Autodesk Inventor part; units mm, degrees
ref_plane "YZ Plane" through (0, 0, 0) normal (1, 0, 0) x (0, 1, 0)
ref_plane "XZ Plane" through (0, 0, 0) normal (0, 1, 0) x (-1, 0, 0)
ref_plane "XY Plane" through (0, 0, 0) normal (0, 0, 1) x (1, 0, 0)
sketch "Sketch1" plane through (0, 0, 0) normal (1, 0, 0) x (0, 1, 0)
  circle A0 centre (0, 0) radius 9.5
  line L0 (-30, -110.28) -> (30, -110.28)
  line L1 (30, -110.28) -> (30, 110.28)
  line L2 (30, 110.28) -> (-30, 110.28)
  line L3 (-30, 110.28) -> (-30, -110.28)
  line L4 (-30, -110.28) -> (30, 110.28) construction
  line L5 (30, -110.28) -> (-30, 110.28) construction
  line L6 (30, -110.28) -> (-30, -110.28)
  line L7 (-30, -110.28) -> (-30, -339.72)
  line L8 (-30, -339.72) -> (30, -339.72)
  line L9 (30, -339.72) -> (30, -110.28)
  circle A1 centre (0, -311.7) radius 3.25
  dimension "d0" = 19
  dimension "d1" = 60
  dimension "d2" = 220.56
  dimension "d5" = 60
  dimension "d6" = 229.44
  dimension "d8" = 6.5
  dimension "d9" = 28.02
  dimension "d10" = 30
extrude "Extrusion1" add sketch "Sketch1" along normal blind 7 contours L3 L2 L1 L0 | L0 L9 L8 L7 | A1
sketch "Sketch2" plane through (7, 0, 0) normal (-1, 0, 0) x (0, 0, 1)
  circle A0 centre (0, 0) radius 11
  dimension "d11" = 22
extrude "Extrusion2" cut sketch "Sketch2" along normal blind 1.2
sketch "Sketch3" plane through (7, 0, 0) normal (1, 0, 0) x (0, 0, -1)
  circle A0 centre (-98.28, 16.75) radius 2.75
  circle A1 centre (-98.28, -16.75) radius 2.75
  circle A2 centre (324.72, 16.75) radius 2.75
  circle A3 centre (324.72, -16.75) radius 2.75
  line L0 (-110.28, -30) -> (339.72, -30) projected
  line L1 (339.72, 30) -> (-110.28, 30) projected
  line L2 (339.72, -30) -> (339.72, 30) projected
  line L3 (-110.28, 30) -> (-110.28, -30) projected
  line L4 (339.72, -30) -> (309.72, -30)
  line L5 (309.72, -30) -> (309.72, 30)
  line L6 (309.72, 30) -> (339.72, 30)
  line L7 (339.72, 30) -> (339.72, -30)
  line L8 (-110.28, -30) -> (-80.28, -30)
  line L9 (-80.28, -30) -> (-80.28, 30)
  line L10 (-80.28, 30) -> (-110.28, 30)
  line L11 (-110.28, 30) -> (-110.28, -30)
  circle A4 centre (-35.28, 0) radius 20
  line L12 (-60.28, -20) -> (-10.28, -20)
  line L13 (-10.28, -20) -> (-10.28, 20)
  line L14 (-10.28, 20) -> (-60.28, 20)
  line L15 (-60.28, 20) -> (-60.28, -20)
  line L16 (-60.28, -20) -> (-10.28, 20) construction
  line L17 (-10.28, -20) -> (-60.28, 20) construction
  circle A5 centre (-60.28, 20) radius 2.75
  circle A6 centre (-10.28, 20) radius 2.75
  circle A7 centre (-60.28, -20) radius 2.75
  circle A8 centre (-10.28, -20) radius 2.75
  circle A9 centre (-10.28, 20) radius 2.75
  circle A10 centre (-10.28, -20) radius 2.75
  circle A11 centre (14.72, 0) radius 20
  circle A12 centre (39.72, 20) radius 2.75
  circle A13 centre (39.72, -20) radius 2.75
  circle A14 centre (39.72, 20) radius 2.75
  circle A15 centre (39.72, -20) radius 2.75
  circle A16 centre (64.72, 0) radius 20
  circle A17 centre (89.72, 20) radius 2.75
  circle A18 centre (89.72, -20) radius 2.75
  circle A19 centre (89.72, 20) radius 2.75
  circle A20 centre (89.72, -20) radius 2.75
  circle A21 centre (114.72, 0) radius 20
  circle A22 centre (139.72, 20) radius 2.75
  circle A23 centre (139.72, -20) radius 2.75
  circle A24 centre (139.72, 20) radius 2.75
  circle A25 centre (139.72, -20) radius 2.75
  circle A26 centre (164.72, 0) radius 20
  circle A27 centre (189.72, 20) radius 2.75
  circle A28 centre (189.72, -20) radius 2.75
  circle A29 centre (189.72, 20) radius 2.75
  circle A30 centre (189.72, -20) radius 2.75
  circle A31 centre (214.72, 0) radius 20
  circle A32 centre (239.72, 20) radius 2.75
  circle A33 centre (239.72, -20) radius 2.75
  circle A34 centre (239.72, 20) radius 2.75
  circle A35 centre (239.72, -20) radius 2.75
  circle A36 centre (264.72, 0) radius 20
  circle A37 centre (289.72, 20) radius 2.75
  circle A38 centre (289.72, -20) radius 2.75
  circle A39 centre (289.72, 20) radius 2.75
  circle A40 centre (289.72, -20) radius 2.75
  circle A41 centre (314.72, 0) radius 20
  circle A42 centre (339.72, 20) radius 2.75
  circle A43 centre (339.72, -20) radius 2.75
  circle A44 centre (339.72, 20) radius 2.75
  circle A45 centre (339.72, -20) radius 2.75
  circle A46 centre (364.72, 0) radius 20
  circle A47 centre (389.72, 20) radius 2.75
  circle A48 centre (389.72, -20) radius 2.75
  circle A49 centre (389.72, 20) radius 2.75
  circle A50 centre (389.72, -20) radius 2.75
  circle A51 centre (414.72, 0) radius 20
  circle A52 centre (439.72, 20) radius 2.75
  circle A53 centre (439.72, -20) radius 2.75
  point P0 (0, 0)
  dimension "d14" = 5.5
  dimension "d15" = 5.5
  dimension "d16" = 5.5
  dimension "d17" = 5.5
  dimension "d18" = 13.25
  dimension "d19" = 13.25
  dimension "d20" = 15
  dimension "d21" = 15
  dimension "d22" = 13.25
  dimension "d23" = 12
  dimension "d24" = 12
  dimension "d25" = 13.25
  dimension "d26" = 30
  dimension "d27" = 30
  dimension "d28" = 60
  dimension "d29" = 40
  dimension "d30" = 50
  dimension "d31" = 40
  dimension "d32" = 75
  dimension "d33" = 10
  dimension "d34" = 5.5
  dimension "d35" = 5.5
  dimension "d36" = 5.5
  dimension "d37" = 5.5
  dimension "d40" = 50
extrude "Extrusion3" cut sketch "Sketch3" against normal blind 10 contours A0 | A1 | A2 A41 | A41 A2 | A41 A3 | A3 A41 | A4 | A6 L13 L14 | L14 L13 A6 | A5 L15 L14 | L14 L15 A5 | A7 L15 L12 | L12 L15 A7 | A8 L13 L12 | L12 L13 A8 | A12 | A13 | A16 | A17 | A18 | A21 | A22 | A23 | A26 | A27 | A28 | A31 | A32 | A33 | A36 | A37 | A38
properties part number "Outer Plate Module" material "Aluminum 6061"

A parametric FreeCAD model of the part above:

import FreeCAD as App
import Part
import Sketcher
Q = App.Units.Quantity


def add_polygon(sketch, points):
    """Adds a closed chain of lines whose ends are joined by coincident constraints."""
    first, n = sketch.GeometryCount, len(points)
    for a, b in zip(points, points[1:] + points[:1]):
        sketch.addGeometry(Part.LineSegment(App.Vector(*a, 0), App.Vector(*b, 0)), False)
    for i in range(n):
        sketch.addConstraint(Sketcher.Constraint("Coincident", first + i, 2, first + (i + 1) % n, 1))

doc = App.newDocument("Part")
body = doc.addObject("PartDesign::Body", "Body")

# Sketch on YZ plane
sketch1 = body.newObject("Sketcher::SketchObject", "Sketch")
sketch1.AttachmentSupport = (doc.getObject("YZ_Plane"), [""])
sketch1.MapMode = "FlatFace"
add_polygon(sketch1, [(-30, 110), (-30, -340), (30, -340), (30, 110)])  # lines 0-3
sketch1.addGeometry(Part.Circle(App.Vector(0, 0, 0), App.Vector(0, 0, 1), 10), False)  # 4
sketch1.addConstraint(Sketcher.Constraint("Vertical", 0))
sketch1.addConstraint(Sketcher.Constraint("Horizontal", 1))
sketch1.addConstraint(Sketcher.Constraint("Vertical", 2))
sketch1.addConstraint(Sketcher.Constraint("Horizontal", 3))
sketch1.addConstraint(Sketcher.Constraint("Coincident", 4, 3, -1, 1))
sketch1.addConstraint(Sketcher.Constraint("Diameter", 4, Q("19 mm")))
sketch1.addConstraint(Sketcher.Constraint("DistanceX", 1, 1, 1, 2, Q("60 mm")))
sketch1.addConstraint(Sketcher.Constraint("DistanceX", 0, 2, -1, 1, Q("30 mm")))
sketch1.addConstraint(Sketcher.Constraint("DistanceY", 0, 2, 0, 1, Q("450 mm")))
sketch1.addConstraint(Sketcher.Constraint("DistanceY", 0, 2, -1, 1, Q("339.72 mm")))
pad1 = body.newObject("PartDesign::Pad", "Pad")
pad1.Profile = sketch1
pad1.Length = 7

# Sketch on YZ plane
sketch2 = body.newObject("Sketcher::SketchObject", "Sketch001")
sketch2.AttachmentSupport = (doc.getObject("YZ_Plane"), [""])
sketch2.MapMode = "FlatFace"
sketch2.AttachmentOffset = App.Placement(App.Vector(0, 0, 7), App.Rotation())
sketch2.addGeometry(Part.Circle(App.Vector(0, 0, 0), App.Vector(0, 0, 1), 11), False)
sketch2.addConstraint(Sketcher.Constraint("Coincident", 0, 3, -1, 1))
sketch2.addConstraint(Sketcher.Constraint("Diameter", 0, Q("22 mm")))
pocket1 = body.newObject("PartDesign::Pocket", "Pocket")
pocket1.Profile = sketch2
pocket1.Length = 1.2

# Sketch on YZ plane
sketch3 = body.newObject("Sketcher::SketchObject", "Sketch002")
sketch3.AttachmentSupport = (doc.getObject("YZ_Plane"), [""])
sketch3.MapMode = "FlatFace"
sketch3.AttachmentOffset = App.Placement(App.Vector(0, 0, 7), App.Rotation())
sketch3.addGeometry(Part.Circle(App.Vector(16.8, 98.3, 0), App.Vector(0, 0, 1), 2.8), False)
sketch3.addGeometry(Part.Circle(App.Vector(-16.8, 98.3, 0), App.Vector(0, 0, 1), 2.8), False)
sketch3.addGeometry(Part.Circle(App.Vector(16.8, -324.7, 0), App.Vector(0, 0, 1), 2.8), False)
sketch3.addGeometry(Part.Circle(App.Vector(-16.8, -324.7, 0), App.Vector(0, 0, 1), 2.8), False)
sketch3.addGeometry(Part.Circle(App.Vector(0, 35.3, 0), App.Vector(0, 0, 1), 20), False)
sketch3.addGeometry(Part.Circle(App.Vector(20, 10.3, 0), App.Vector(0, 0, 1), 2.8), False)
sketch3.addGeometry(Part.Circle(App.Vector(20, 60.3, 0), App.Vector(0, 0, 1), 2.8), False)
sketch3.addGeometry(Part.Circle(App.Vector(-20, 60.3, 0), App.Vector(0, 0, 1), 2.8), False)
sketch3.addGeometry(Part.Circle(App.Vector(-20, 10.3, 0), App.Vector(0, 0, 1), 2.8), False)
sketch3.addGeometry(Part.Circle(App.Vector(20, -39.7, 0), App.Vector(0, 0, 1), 2.8), False)
sketch3.addGeometry(Part.Circle(App.Vector(-20, -39.7, 0), App.Vector(0, 0, 1), 2.8), False)
sketch3.addGeometry(Part.Circle(App.Vector(0, -64.7, 0), App.Vector(0, 0, 1), 20), False)
sketch3.addGeometry(Part.Circle(App.Vector(20, -89.7, 0), App.Vector(0, 0, 1), 2.8), False)
sketch3.addGeometry(Part.Circle(App.Vector(-20, -89.7, 0), App.Vector(0, 0, 1), 2.8), False)
sketch3.addGeometry(Part.Circle(App.Vector(0, -114.7, 0), App.Vector(0, 0, 1), 20), False)
sketch3.addGeometry(Part.Circle(App.Vector(20, -139.7, 0), App.Vector(0, 0, 1), 2.8), False)
sketch3.addGeometry(Part.Circle(App.Vector(-20, -139.7, 0), App.Vector(0, 0, 1), 2.8), False)
sketch3.addGeometry(Part.Circle(App.Vector(0, -164.7, 0), App.Vector(0, 0, 1), 20), False)
sketch3.addGeometry(Part.Circle(App.Vector(20, -189.7, 0), App.Vector(0, 0, 1), 2.8), False)
sketch3.addGeometry(Part.Circle(App.Vector(-20, -189.7, 0), App.Vector(0, 0, 1), 2.8), False)
sketch3.addGeometry(Part.Circle(App.Vector(0, -214.7, 0), App.Vector(0, 0, 1), 20), False)
sketch3.addGeometry(Part.Circle(App.Vector(20, -239.7, 0), App.Vector(0, 0, 1), 2.8), False)
sketch3.addGeometry(Part.Circle(App.Vector(-20, -239.7, 0), App.Vector(0, 0, 1), 2.8), False)
sketch3.addGeometry(Part.Circle(App.Vector(0, -264.7, 0), App.Vector(0, 0, 1), 20), False)
sketch3.addGeometry(Part.Circle(App.Vector(20, -289.7, 0), App.Vector(0, 0, 1), 2.8), False)
sketch3.addGeometry(Part.Circle(App.Vector(-20, -289.7, 0), App.Vector(0, 0, 1), 2.8), False)
sketch3.addConstraint(Sketcher.Constraint("Equal", 0, 1))
sketch3.addConstraint(Sketcher.Constraint("Equal", 1, 2))
sketch3.addConstraint(Sketcher.Constraint("Equal", 2, 3))
sketch3.addConstraint(Sketcher.Constraint("Equal", 3, 5))
sketch3.addConstraint(Sketcher.Constraint("Equal", 5, 6))
sketch3.addConstraint(Sketcher.Constraint("Equal", 6, 7))
sketch3.addConstraint(Sketcher.Constraint("Equal", 7, 8))
sketch3.addConstraint(Sketcher.Constraint("Equal", 8, 9))
sketch3.addConstraint(Sketcher.Constraint("Equal", 9, 10))
sketch3.addConstraint(Sketcher.Constraint("Equal", 4, 11))
sketch3.addConstraint(Sketcher.Constraint("Equal", 10, 12))
sketch3.addConstraint(Sketcher.Constraint("Equal", 12, 13))
sketch3.addConstraint(Sketcher.Constraint("Equal", 11, 14))
sketch3.addConstraint(Sketcher.Constraint("Equal", 13, 15))
sketch3.addConstraint(Sketcher.Constraint("Equal", 15, 16))
sketch3.addConstraint(Sketcher.Constraint("Equal", 14, 17))
sketch3.addConstraint(Sketcher.Constraint("Equal", 16, 18))
sketch3.addConstraint(Sketcher.Constraint("Equal", 18, 19))
sketch3.addConstraint(Sketcher.Constraint("Equal", 17, 20))
sketch3.addConstraint(Sketcher.Constraint("Equal", 19, 21))
sketch3.addConstraint(Sketcher.Constraint("Equal", 21, 22))
sketch3.addConstraint(Sketcher.Constraint("Equal", 20, 23))
sketch3.addConstraint(Sketcher.Constraint("Equal", 22, 24))
sketch3.addConstraint(Sketcher.Constraint("Equal", 24, 25))
sketch3.addConstraint(Sketcher.Constraint("Symmetric", 0, 3, 1, 3, -2))
sketch3.addConstraint(Sketcher.Constraint("Symmetric", 2, 3, 3, 3, -2))
sketch3.addConstraint(Sketcher.Constraint("Symmetric", 6, 3, 7, 3, -2))
sketch3.addConstraint(Sketcher.Constraint("Symmetric", 5, 3, 8, 3, -2))
sketch3.addConstraint(Sketcher.Constraint("Symmetric", 9, 3, 10, 3, -2))
sketch3.addConstraint(Sketcher.Constraint("Symmetric", 12, 3, 13, 3, -2))
sketch3.addConstraint(Sketcher.Constraint("Symmetric", 15, 3, 16, 3, -2))
sketch3.addConstraint(Sketcher.Constraint("Symmetric", 18, 3, 19, 3, -2))
sketch3.addConstraint(Sketcher.Constraint("Symmetric", 21, 3, 22, 3, -2))
sketch3.addConstraint(Sketcher.Constraint("Symmetric", 24, 3, 25, 3, -2))
sketch3.addConstraint(Sketcher.Constraint("PointOnObject", 4, 3, -2))
sketch3.addConstraint(Sketcher.Constraint("PointOnObject", 11, 3, -2))
sketch3.addConstraint(Sketcher.Constraint("PointOnObject", 14, 3, -2))
sketch3.addConstraint(Sketcher.Constraint("PointOnObject", 17, 3, -2))
sketch3.addConstraint(Sketcher.Constraint("PointOnObject", 20, 3, -2))
sketch3.addConstraint(Sketcher.Constraint("PointOnObject", 23, 3, -2))
sketch3.addConstraint(Sketcher.Constraint("Vertical", 0, 3, 2, 3))
sketch3.addConstraint(Sketcher.Constraint("Vertical", 5, 3, 6, 3))
sketch3.addConstraint(Sketcher.Constraint("Vertical", 6, 3, 9, 3))
sketch3.addConstraint(Sketcher.Constraint("Vertical", 9, 3, 12, 3))
sketch3.addConstraint(Sketcher.Constraint("Vertical", 12, 3, 15, 3))
sketch3.addConstraint(Sketcher.Constraint("Vertical", 15, 3, 18, 3))
sketch3.addConstraint(Sketcher.Constraint("Vertical", 18, 3, 21, 3))
sketch3.addConstraint(Sketcher.Constraint("Vertical", 21, 3, 24, 3))
sketch3.addConstraint(Sketcher.Constraint("Diameter", 4, Q("40 mm")))
sketch3.addConstraint(Sketcher.Constraint("Diameter", 0, Q("5.5 mm")))
sketch3.addConstraint(Sketcher.Constraint("DistanceY", 5, 3, 6, 3, Q("50 mm")))
sketch3.addConstraint(Sketcher.Constraint("DistanceX", 7, 3, 6, 3, Q("40 mm")))
sketch3.addConstraint(Sketcher.Constraint("DistanceY", 9, 3, 5, 3, Q("50 mm")))
sketch3.addConstraint(Sketcher.Constraint("DistanceY", 9, 3, 4, 3, Q("75 mm")))
sketch3.addConstraint(Sketcher.Constraint("DistanceY", 11, 3, 5, 3, Q("75 mm")))
sketch3.addConstraint(Sketcher.Constraint("DistanceY", 12, 3, 9, 3, Q("50 mm")))
sketch3.addConstraint(Sketcher.Constraint("DistanceY", 14, 3, 11, 3, Q("50 mm")))
sketch3.addConstraint(Sketcher.Constraint("DistanceY", 15, 3, 12, 3, Q("50 mm")))
sketch3.addConstraint(Sketcher.Constraint("DistanceY", 17, 3, 14, 3, Q("50 mm")))
sketch3.addConstraint(Sketcher.Constraint("DistanceY", 18, 3, 15, 3, Q("50 mm")))
sketch3.addConstraint(Sketcher.Constraint("DistanceY", 20, 3, 17, 3, Q("50 mm")))
sketch3.addConstraint(Sketcher.Constraint("DistanceY", 21, 3, 18, 3, Q("50 mm")))
sketch3.addConstraint(Sketcher.Constraint("DistanceY", 23, 3, 20, 3, Q("50 mm")))
sketch3.addConstraint(Sketcher.Constraint("DistanceY", 2, 3, 23, 3, Q("60 mm")))
sketch3.addConstraint(Sketcher.Constraint("DistanceY", 24, 3, 21, 3, Q("50 mm")))
sketch3.addConstraint(Sketcher.Constraint("DistanceY", 2, 3, 0, 3, Q("423 mm")))
sketch3.addConstraint(Sketcher.Constraint("DistanceX", 1, 3, 0, 3, Q("33.5 mm")))
sketch3.addConstraint(Sketcher.Constraint("DistanceY", -1, 1, 0, 3, Q("98.28 mm")))
pocket2 = body.newObject("PartDesign::Pocket", "Pocket001")
pocket2.Profile = sketch3
pocket2.Length = 10

doc.recompute()
